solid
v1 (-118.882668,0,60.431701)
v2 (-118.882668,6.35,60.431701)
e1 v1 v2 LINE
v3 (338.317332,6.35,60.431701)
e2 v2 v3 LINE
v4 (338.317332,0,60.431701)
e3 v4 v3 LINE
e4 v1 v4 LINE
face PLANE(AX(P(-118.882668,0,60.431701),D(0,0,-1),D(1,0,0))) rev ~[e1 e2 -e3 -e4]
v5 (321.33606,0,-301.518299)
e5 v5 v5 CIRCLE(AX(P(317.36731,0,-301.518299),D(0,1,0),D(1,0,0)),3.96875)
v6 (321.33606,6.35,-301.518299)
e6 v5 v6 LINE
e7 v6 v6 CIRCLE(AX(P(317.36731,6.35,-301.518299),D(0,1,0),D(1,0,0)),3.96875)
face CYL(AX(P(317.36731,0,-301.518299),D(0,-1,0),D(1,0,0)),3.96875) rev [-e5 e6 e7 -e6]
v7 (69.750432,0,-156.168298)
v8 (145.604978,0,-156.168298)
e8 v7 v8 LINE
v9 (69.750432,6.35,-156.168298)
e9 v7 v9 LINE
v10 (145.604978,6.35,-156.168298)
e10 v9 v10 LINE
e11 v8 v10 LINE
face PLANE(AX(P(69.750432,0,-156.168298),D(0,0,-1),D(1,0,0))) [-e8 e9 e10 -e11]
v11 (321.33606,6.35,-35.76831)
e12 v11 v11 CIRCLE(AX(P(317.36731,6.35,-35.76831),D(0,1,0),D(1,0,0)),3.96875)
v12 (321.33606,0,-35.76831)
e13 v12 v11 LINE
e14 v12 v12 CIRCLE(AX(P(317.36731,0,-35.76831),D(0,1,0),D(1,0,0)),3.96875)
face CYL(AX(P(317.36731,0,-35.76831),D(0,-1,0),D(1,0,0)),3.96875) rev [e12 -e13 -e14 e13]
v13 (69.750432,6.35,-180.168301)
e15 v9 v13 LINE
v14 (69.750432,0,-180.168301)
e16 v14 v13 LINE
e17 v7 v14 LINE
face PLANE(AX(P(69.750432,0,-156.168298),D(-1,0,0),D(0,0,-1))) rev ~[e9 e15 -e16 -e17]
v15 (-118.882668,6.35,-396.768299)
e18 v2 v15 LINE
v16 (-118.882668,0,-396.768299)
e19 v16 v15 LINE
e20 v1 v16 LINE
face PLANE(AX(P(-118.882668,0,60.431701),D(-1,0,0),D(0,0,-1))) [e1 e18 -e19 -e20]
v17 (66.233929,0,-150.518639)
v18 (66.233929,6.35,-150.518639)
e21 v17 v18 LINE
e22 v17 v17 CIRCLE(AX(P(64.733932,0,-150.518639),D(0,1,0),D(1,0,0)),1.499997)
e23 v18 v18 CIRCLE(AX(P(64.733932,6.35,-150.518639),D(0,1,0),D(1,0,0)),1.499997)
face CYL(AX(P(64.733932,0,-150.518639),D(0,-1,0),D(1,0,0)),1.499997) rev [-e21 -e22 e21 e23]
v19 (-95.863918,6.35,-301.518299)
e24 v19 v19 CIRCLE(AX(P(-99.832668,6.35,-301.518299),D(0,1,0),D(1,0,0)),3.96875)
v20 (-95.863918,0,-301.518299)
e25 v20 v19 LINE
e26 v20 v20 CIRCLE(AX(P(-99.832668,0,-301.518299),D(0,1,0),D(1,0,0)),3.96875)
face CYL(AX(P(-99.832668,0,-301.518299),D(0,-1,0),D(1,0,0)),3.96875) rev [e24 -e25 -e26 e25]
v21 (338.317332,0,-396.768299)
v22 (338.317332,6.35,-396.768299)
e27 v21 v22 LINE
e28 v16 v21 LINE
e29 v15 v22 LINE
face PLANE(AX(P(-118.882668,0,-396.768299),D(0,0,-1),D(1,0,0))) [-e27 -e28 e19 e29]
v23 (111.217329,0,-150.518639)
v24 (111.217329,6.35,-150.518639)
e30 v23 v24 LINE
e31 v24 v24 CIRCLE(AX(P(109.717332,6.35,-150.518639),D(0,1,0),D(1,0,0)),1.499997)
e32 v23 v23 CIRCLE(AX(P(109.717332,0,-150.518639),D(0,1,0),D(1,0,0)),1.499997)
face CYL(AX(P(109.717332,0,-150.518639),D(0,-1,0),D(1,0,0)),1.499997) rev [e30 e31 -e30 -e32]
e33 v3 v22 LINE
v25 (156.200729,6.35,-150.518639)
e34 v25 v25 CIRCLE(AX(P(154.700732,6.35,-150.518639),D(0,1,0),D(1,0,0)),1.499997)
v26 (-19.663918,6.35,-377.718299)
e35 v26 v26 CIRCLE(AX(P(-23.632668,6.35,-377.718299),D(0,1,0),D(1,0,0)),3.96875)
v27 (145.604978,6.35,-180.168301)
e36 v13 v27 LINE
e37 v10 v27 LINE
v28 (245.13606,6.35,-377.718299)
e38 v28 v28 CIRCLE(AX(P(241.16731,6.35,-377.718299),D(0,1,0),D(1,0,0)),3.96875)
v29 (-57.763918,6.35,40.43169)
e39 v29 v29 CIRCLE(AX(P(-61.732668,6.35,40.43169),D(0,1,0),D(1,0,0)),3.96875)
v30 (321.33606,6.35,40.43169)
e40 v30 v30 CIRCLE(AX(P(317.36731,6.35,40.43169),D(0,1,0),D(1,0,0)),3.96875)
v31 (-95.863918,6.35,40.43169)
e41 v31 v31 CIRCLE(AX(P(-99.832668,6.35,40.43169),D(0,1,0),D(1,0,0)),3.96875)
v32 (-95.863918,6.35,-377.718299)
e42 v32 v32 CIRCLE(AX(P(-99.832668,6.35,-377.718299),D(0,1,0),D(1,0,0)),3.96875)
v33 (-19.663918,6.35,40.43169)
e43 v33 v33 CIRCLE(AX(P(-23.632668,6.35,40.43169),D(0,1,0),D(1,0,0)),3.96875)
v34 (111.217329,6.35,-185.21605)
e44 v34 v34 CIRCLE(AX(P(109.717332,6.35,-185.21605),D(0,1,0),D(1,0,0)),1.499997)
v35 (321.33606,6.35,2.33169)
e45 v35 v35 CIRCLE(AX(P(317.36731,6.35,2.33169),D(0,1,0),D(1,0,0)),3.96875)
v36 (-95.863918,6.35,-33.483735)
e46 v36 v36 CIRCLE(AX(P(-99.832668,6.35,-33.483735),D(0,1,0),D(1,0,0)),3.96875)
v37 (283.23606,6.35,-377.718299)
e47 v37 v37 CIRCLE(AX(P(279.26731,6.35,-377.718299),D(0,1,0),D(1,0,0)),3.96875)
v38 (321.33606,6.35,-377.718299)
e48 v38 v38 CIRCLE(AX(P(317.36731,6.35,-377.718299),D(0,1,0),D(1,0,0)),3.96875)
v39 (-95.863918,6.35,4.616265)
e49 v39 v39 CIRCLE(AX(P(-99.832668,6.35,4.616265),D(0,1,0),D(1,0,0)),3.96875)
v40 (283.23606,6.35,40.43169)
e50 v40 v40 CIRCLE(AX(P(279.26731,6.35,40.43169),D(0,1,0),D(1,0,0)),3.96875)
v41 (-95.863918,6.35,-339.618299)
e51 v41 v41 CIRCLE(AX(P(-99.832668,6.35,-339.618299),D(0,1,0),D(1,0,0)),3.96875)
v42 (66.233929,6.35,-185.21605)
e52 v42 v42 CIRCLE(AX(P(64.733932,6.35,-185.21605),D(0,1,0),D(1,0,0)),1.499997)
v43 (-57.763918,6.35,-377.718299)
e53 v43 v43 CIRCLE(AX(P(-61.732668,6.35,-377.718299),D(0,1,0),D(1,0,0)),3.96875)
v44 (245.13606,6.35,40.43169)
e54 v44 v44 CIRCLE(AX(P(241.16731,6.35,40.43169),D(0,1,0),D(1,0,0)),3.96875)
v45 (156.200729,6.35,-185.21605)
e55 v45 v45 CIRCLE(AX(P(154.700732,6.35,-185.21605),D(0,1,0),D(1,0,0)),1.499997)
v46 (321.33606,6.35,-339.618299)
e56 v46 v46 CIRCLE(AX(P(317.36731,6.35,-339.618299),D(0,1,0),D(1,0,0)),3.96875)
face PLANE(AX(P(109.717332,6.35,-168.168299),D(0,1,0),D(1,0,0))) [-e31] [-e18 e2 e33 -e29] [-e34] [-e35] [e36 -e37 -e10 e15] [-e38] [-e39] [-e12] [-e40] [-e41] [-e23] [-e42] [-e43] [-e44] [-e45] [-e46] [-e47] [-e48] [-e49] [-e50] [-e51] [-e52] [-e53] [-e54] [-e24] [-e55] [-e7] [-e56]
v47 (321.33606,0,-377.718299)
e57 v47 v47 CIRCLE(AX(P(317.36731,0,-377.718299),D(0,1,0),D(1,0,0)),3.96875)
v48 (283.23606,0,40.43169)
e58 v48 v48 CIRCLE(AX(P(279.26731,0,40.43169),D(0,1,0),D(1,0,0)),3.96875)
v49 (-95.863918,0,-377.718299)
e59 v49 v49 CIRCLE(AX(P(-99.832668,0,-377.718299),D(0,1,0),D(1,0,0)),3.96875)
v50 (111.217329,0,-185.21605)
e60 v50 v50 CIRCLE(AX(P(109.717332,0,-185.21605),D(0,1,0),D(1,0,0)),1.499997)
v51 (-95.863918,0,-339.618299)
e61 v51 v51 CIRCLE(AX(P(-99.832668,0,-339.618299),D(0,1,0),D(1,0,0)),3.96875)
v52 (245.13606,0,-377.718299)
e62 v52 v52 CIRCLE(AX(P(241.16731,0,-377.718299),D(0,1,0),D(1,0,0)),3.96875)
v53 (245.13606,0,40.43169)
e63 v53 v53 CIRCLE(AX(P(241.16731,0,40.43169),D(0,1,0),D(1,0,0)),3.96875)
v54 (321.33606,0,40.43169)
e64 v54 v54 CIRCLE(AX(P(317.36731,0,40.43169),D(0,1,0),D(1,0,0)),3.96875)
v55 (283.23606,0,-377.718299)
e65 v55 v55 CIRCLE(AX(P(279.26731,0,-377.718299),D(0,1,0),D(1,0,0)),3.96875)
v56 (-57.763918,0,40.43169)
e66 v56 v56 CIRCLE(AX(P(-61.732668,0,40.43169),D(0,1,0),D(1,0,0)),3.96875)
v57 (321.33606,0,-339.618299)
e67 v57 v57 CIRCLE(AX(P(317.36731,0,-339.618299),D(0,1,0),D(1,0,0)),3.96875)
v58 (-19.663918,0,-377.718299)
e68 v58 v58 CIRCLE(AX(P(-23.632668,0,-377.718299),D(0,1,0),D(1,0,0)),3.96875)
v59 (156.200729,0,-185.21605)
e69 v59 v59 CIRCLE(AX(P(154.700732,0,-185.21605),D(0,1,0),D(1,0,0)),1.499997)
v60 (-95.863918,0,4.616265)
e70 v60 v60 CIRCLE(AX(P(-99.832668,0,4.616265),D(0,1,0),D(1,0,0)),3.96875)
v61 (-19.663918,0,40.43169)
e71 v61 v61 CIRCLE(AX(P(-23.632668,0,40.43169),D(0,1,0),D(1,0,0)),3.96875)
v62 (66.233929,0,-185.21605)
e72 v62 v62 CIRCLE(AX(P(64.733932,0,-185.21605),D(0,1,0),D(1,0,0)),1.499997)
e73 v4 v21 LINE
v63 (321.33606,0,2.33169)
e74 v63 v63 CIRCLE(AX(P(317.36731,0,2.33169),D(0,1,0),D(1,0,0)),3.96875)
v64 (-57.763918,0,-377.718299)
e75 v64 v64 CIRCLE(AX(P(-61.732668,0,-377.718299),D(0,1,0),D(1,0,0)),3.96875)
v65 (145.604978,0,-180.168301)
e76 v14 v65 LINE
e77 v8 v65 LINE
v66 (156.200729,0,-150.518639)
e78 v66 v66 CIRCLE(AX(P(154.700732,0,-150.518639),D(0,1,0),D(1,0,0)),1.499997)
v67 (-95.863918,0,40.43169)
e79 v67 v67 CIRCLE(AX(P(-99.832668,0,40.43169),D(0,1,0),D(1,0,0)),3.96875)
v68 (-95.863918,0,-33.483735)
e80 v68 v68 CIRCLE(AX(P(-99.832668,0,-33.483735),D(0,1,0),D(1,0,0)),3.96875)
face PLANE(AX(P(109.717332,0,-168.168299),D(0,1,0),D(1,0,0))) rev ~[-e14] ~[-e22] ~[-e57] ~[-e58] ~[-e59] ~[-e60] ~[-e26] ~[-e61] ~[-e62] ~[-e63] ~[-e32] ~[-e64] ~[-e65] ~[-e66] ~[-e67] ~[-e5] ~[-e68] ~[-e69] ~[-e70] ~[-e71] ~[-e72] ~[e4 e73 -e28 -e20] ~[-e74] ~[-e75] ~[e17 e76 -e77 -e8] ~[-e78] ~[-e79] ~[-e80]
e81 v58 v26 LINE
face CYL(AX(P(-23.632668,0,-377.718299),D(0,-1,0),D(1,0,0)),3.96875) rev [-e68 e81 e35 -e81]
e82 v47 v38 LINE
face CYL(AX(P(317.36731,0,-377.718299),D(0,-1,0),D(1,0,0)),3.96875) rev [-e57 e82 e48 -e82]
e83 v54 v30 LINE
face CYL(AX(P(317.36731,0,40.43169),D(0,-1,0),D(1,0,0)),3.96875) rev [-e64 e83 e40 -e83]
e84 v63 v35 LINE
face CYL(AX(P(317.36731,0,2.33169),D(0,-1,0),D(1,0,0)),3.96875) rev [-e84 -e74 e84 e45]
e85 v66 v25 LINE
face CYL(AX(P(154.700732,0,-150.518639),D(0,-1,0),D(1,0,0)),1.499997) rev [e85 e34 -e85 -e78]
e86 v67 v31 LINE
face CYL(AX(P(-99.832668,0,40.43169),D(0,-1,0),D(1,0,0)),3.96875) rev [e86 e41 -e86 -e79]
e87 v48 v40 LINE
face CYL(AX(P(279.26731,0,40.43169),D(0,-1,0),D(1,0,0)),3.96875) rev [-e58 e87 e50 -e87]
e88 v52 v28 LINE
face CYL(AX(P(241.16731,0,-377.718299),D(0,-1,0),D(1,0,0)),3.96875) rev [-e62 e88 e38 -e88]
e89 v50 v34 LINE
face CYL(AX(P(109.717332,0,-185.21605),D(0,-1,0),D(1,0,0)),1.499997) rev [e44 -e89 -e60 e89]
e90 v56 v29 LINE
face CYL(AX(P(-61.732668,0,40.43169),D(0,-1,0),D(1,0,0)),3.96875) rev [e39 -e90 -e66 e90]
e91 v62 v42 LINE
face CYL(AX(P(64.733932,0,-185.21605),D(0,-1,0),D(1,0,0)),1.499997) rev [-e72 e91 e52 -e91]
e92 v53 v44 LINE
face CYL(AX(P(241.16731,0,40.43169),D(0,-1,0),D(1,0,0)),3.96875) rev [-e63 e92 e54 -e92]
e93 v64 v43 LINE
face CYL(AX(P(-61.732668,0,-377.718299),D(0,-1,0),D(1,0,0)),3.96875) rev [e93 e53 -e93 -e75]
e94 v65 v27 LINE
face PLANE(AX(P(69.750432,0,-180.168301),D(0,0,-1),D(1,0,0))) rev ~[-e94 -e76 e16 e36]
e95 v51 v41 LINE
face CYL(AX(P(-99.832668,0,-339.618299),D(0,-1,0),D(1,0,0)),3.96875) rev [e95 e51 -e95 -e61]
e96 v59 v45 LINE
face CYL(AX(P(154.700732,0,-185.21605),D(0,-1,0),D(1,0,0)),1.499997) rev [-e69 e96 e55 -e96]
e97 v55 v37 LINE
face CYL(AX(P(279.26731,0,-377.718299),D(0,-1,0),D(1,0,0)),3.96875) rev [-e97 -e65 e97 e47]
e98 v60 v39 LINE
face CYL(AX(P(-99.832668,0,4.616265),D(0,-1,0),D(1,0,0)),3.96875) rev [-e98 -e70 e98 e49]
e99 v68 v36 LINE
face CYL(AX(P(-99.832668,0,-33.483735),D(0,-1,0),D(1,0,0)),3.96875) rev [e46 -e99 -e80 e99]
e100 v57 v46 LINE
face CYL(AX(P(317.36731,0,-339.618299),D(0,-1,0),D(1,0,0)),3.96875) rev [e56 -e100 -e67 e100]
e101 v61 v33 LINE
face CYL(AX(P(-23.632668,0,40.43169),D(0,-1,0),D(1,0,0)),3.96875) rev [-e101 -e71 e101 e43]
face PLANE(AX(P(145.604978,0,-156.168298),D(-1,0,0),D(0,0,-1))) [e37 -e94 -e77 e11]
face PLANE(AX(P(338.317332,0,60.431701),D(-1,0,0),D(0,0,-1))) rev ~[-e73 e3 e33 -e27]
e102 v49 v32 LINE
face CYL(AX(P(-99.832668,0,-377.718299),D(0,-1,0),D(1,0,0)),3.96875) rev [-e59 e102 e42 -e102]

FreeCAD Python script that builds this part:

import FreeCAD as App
import Part
import Sketcher
from FreeCAD import Vector
Q = App.Units.Quantity

doc = App.newDocument("Part")
params = doc.addObject("Spreadsheet::Sheet", "Params")
for row, (alias, value) in enumerate([
    ("sketch1_width", "18 in"),
    ("sketch1_diameter", "0.3125 in"),
    ("pad1_length", "0.25 in"),
], start=1):
    params.set(f"A{row}", alias)
    params.set(f"B{row}", "=" + value)
    params.setAlias(f"B{row}", alias)

body = doc.addObject("PartDesign::Body", "Body")

# Sketch on XZ plane
sketch1 = body.newObject("Sketcher::SketchObject", "Sketch")
sketch1.AttachmentSupport = (doc.getObject("XZ_Plane"), [""])
sketch1.MapMode = "FlatFace"
sketch1.addGeometry([
    Part.LineSegment(Vector(-118.882668, -396.768299, 0), Vector(-118.882668, 60.431701, 0)),  # 0
    Part.LineSegment(Vector(-118.882668, 60.431701, 0), Vector(338.317332, 60.431701, 0)),  # 1
    Part.LineSegment(Vector(338.317332, 60.431701, 0), Vector(338.317332, -396.768299, 0)),  # 2
    Part.LineSegment(Vector(338.317332, -396.768299, 0), Vector(-118.882668, -396.768299, 0)),  # 3
    Part.Circle(Vector(-99.832668, 40.43169, 0), Vector(0, 0, 1), 3.96875),  # 4
    Part.Circle(Vector(-61.732668, 40.43169, 0), Vector(0, 0, 1), 3.96875),  # 5
    Part.Circle(Vector(-99.832668, 4.616265, 0), Vector(0, 0, 1), 3.96875),  # 6
    Part.Circle(Vector(-23.632668, 40.43169, 0), Vector(0, 0, 1), 3.96875),  # 7
    Part.Circle(Vector(-99.832668, -33.483735, 0), Vector(0, 0, 1), 3.96875),  # 8
    Part.Circle(Vector(64.733932, -150.518639, 0), Vector(0, 0, 1), 1.499997),  # 9
    Part.LineSegment(Vector(145.604978, -156.168298, 0), Vector(69.750432, -156.168298, 0)),  # 10
    Part.LineSegment(Vector(69.750432, -156.168298, 0), Vector(69.750432, -180.168301, 0)),  # 11
    Part.LineSegment(Vector(69.750432, -180.168301, 0), Vector(145.604978, -180.168301, 0)),  # 12
    Part.LineSegment(Vector(145.604978, -180.168301, 0), Vector(145.604978, -156.168298, 0)),  # 13
    Part.Circle(Vector(241.16731, 40.43169, 0), Vector(0, 0, 1), 3.96875),  # 14
    Part.Circle(Vector(279.26731, 40.43169, 0), Vector(0, 0, 1), 3.96875),  # 15
    Part.Circle(Vector(317.36731, 40.43169, 0), Vector(0, 0, 1), 3.96875),  # 16
    Part.Circle(Vector(317.36731, 2.33169, 0), Vector(0, 0, 1), 3.96875),  # 17
    Part.Circle(Vector(317.36731, -35.76831, 0), Vector(0, 0, 1), 3.96875),  # 18
    Part.Circle(Vector(109.717332, -150.518639, 0), Vector(0, 0, 1), 1.499997),  # 19
    Part.Circle(Vector(154.700732, -150.518639, 0), Vector(0, 0, 1), 1.499997),  # 20
    Part.Circle(Vector(64.733932, -185.21605, 0), Vector(0, 0, 1), 1.499997),  # 21
    Part.Circle(Vector(-99.832668, -301.518299, 0), Vector(0, 0, 1), 3.96875),  # 22
    Part.Circle(Vector(-99.832668, -339.618299, 0), Vector(0, 0, 1), 3.96875),  # 23
    Part.Circle(Vector(-99.832668, -377.718299, 0), Vector(0, 0, 1), 3.96875),  # 24
    Part.Circle(Vector(-61.732668, -377.718299, 0), Vector(0, 0, 1), 3.96875),  # 25
    Part.Circle(Vector(-23.632668, -377.718299, 0), Vector(0, 0, 1), 3.96875),  # 26
    Part.Circle(Vector(109.717332, -185.21605, 0), Vector(0, 0, 1), 1.499997),  # 27
    Part.Circle(Vector(154.700732, -185.21605, 0), Vector(0, 0, 1), 1.499997),  # 28
    Part.Circle(Vector(317.36731, -301.518299, 0), Vector(0, 0, 1), 3.96875),  # 29
    Part.Circle(Vector(241.16731, -377.718299, 0), Vector(0, 0, 1), 3.96875),  # 30
    Part.Circle(Vector(317.36731, -339.618299, 0), Vector(0, 0, 1), 3.96875),  # 31
    Part.Circle(Vector(279.26731, -377.718299, 0), Vector(0, 0, 1), 3.96875),  # 32
    Part.Circle(Vector(317.36731, -377.718299, 0), Vector(0, 0, 1), 3.96875),  # 33
], False)
sketch1.addConstraint([
    Sketcher.Constraint("Coincident", 0, 2, 1, 1),
    Sketcher.Constraint("Coincident", 1, 2, 2, 1),
    Sketcher.Constraint("Coincident", 2, 2, 3, 1),
    Sketcher.Constraint("Coincident", 3, 2, 0, 1),
    Sketcher.Constraint("Coincident", 10, 2, 11, 1),
    Sketcher.Constraint("Coincident", 11, 2, 12, 1),
    Sketcher.Constraint("Coincident", 12, 2, 13, 1),
    Sketcher.Constraint("Coincident", 13, 2, 10, 1),
    Sketcher.Constraint("Vertical", 0),
    Sketcher.Constraint("Horizontal", 1),
    Sketcher.Constraint("Vertical", 2),
    Sketcher.Constraint("Horizontal", 3),
    Sketcher.Constraint("Horizontal", 10),
    Sketcher.Constraint("Vertical", 11),
    Sketcher.Constraint("Horizontal", 12),
    Sketcher.Constraint("Vertical", 13),
    Sketcher.Constraint("Equal", 4, 5),
    Sketcher.Constraint("Equal", 5, 6),
    Sketcher.Constraint("Equal", 6, 7),
    Sketcher.Constraint("Equal", 7, 8),
    Sketcher.Constraint("Equal", 8, 14),
    Sketcher.Constraint("Equal", 14, 15),
    Sketcher.Constraint("Equal", 15, 16),
    Sketcher.Constraint("Equal", 16, 17),
    Sketcher.Constraint("Equal", 17, 18),
    Sketcher.Constraint("Equal", 9, 19),
    Sketcher.Constraint("Equal", 19, 20),
    Sketcher.Constraint("Equal", 20, 21),
    Sketcher.Constraint("Equal", 18, 22),
    Sketcher.Constraint("Equal", 22, 23),
    Sketcher.Constraint("Equal", 23, 24),
    Sketcher.Constraint("Equal", 24, 25),
    Sketcher.Constraint("Equal", 25, 26),
    Sketcher.Constraint("Equal", 21, 27),
    Sketcher.Constraint("Equal", 27, 28),
    Sketcher.Constraint("Equal", 26, 29),
    Sketcher.Constraint("Equal", 29, 30),
    Sketcher.Constraint("Equal", 30, 31),
    Sketcher.Constraint("Equal", 31, 32),
    Sketcher.Constraint("Equal", 32, 33),
    Sketcher.Constraint("Horizontal", 4, 3, 5, 3),
    Sketcher.Constraint("Horizontal", 5, 3, 7, 3),
    Sketcher.Constraint("Horizontal", 7, 3, 14, 3),
    Sketcher.Constraint("Horizontal", 14, 3, 15, 3),
    Sketcher.Constraint("Horizontal", 15, 3, 16, 3),
    Sketcher.Constraint("Horizontal", 9, 3, 19, 3),
    Sketcher.Constraint("Horizontal", 19, 3, 20, 3),
    Sketcher.Constraint("Horizontal", 24, 3, 25, 3),
    Sketcher.Constraint("Horizontal", 25, 3, 26, 3),
    Sketcher.Constraint("Horizontal", 21, 3, 27, 3),
    Sketcher.Constraint("Horizontal", 27, 3, 28, 3),
    Sketcher.Constraint("Horizontal", 22, 3, 29, 3),
    Sketcher.Constraint("Horizontal", 26, 3, 30, 3),
    Sketcher.Constraint("Horizontal", 23, 3, 31, 3),
    Sketcher.Constraint("Horizontal", 30, 3, 32, 3),
    Sketcher.Constraint("Horizontal", 32, 3, 33, 3),
    Sketcher.Constraint("Vertical", 4, 3, 6, 3),
    Sketcher.Constraint("Vertical", 6, 3, 8, 3),
    Sketcher.Constraint("Vertical", 16, 3, 17, 3),
    Sketcher.Constraint("Vertical", 17, 3, 18, 3),
    Sketcher.Constraint("Vertical", 9, 3, 21, 3),
    Sketcher.Constraint("Vertical", 8, 3, 22, 3),
    Sketcher.Constraint("Vertical", 22, 3, 23, 3),
    Sketcher.Constraint("Vertical", 23, 3, 24, 3),
    Sketcher.Constraint("Vertical", 5, 3, 25, 3),
    Sketcher.Constraint("Vertical", 7, 3, 26, 3),
    Sketcher.Constraint("Vertical", 19, 3, 27, 3),
    Sketcher.Constraint("Vertical", 20, 3, 28, 3),
    Sketcher.Constraint("Vertical", 18, 3, 29, 3),
    Sketcher.Constraint("Vertical", 14, 3, 30, 3),
    Sketcher.Constraint("Vertical", 29, 3, 31, 3),
    Sketcher.Constraint("Vertical", 15, 3, 32, 3),
    Sketcher.Constraint("Vertical", 31, 3, 33, 3),
    Sketcher.Constraint("Equal", 3, 0),
    Sketcher.Constraint("DistanceX", 1, 1, 1, 2, Q("18 in")),
    Sketcher.Constraint("Diameter", 4, Q("0.3125 in")),
    Sketcher.Constraint("DistanceX", 4, 3, 7, 3, Q("3 in")),
    Sketcher.Constraint("DistanceX", 14, 3, 16, 3, Q("3 in")),
    Sketcher.Constraint("DistanceY", 18, 3, 16, 3, Q("3 in")),
    Sketcher.Constraint("DistanceY", 24, 3, 22, 3, Q("3 in")),
    Sketcher.Constraint("DistanceX", 4, 3, 5, 3, Q("1.5 in")),
    Sketcher.Constraint("DistanceY", 8, 3, 6, 3, Q("1.5 in")),
    Sketcher.Constraint("DistanceX", 14, 3, 15, 3, Q("1.5 in")),
    Sketcher.Constraint("DistanceY", 17, 3, 16, 3, Q("1.5 in")),
    Sketcher.Constraint("DistanceY", 23, 3, 22, 3, Q("1.5 in")),
    Sketcher.Constraint("DistanceX", 7, 3, 19, 3, Q("5.25 in")),
    Sketcher.Constraint("DistanceX", 0, 2, 4, 3, Q("0.75 in")),
    Sketcher.Constraint("DistanceY", 2, 2, 33, 3, Q("0.75 in")),
    Sketcher.Constraint("DistanceX", 8, 3, 9, 3, Q("6.479 in")),
    Sketcher.Constraint("DistanceX", 19, 3, 20, 3, Q("1.771 in")),
    Sketcher.Constraint("Diameter", 9, 2.999994),
    Sketcher.Constraint("DistanceX", 9, 3, 10, 2, Q("0.1975 in")),
    Sketcher.Constraint("DistanceY", 22, 3, -1, 1, 301.518299),
    Sketcher.Constraint("DistanceY", 11, 2, -1, 1, 180.168301),
    Sketcher.Constraint("DistanceX", 10, 2, 10, 1, 75.854547),
    Sketcher.Constraint("DistanceY", 11, 2, 11, 1, 24.000003),
    Sketcher.Constraint("DistanceX", 4, 3, -1, 1, 99.832668),
    Sketcher.Constraint("DistanceY", -1, 1, 4, 3, 40.43169),
    Sketcher.Constraint("DistanceY", 9, 3, -1, 1, 150.518639),
    Sketcher.Constraint("DistanceX", -1, 1, 14, 3, 241.16731),
    Sketcher.Constraint("DistanceY", 21, 3, -1, 1, 185.21605),
    Sketcher.Constraint("DistanceY", -1, 1, 6, 3, 4.616265),
])
sketch1.setExpression("Constraints[74]", "Params.sketch1_width")
sketch1.setExpression("Constraints[75]", "Params.sketch1_diameter")
pad1 = body.newObject("PartDesign::Pad", "Pad")
pad1.Profile = sketch1
pad1.setExpression("Length", "Params.pad1_length")
pad1.Reversed = True

doc.recompute()
